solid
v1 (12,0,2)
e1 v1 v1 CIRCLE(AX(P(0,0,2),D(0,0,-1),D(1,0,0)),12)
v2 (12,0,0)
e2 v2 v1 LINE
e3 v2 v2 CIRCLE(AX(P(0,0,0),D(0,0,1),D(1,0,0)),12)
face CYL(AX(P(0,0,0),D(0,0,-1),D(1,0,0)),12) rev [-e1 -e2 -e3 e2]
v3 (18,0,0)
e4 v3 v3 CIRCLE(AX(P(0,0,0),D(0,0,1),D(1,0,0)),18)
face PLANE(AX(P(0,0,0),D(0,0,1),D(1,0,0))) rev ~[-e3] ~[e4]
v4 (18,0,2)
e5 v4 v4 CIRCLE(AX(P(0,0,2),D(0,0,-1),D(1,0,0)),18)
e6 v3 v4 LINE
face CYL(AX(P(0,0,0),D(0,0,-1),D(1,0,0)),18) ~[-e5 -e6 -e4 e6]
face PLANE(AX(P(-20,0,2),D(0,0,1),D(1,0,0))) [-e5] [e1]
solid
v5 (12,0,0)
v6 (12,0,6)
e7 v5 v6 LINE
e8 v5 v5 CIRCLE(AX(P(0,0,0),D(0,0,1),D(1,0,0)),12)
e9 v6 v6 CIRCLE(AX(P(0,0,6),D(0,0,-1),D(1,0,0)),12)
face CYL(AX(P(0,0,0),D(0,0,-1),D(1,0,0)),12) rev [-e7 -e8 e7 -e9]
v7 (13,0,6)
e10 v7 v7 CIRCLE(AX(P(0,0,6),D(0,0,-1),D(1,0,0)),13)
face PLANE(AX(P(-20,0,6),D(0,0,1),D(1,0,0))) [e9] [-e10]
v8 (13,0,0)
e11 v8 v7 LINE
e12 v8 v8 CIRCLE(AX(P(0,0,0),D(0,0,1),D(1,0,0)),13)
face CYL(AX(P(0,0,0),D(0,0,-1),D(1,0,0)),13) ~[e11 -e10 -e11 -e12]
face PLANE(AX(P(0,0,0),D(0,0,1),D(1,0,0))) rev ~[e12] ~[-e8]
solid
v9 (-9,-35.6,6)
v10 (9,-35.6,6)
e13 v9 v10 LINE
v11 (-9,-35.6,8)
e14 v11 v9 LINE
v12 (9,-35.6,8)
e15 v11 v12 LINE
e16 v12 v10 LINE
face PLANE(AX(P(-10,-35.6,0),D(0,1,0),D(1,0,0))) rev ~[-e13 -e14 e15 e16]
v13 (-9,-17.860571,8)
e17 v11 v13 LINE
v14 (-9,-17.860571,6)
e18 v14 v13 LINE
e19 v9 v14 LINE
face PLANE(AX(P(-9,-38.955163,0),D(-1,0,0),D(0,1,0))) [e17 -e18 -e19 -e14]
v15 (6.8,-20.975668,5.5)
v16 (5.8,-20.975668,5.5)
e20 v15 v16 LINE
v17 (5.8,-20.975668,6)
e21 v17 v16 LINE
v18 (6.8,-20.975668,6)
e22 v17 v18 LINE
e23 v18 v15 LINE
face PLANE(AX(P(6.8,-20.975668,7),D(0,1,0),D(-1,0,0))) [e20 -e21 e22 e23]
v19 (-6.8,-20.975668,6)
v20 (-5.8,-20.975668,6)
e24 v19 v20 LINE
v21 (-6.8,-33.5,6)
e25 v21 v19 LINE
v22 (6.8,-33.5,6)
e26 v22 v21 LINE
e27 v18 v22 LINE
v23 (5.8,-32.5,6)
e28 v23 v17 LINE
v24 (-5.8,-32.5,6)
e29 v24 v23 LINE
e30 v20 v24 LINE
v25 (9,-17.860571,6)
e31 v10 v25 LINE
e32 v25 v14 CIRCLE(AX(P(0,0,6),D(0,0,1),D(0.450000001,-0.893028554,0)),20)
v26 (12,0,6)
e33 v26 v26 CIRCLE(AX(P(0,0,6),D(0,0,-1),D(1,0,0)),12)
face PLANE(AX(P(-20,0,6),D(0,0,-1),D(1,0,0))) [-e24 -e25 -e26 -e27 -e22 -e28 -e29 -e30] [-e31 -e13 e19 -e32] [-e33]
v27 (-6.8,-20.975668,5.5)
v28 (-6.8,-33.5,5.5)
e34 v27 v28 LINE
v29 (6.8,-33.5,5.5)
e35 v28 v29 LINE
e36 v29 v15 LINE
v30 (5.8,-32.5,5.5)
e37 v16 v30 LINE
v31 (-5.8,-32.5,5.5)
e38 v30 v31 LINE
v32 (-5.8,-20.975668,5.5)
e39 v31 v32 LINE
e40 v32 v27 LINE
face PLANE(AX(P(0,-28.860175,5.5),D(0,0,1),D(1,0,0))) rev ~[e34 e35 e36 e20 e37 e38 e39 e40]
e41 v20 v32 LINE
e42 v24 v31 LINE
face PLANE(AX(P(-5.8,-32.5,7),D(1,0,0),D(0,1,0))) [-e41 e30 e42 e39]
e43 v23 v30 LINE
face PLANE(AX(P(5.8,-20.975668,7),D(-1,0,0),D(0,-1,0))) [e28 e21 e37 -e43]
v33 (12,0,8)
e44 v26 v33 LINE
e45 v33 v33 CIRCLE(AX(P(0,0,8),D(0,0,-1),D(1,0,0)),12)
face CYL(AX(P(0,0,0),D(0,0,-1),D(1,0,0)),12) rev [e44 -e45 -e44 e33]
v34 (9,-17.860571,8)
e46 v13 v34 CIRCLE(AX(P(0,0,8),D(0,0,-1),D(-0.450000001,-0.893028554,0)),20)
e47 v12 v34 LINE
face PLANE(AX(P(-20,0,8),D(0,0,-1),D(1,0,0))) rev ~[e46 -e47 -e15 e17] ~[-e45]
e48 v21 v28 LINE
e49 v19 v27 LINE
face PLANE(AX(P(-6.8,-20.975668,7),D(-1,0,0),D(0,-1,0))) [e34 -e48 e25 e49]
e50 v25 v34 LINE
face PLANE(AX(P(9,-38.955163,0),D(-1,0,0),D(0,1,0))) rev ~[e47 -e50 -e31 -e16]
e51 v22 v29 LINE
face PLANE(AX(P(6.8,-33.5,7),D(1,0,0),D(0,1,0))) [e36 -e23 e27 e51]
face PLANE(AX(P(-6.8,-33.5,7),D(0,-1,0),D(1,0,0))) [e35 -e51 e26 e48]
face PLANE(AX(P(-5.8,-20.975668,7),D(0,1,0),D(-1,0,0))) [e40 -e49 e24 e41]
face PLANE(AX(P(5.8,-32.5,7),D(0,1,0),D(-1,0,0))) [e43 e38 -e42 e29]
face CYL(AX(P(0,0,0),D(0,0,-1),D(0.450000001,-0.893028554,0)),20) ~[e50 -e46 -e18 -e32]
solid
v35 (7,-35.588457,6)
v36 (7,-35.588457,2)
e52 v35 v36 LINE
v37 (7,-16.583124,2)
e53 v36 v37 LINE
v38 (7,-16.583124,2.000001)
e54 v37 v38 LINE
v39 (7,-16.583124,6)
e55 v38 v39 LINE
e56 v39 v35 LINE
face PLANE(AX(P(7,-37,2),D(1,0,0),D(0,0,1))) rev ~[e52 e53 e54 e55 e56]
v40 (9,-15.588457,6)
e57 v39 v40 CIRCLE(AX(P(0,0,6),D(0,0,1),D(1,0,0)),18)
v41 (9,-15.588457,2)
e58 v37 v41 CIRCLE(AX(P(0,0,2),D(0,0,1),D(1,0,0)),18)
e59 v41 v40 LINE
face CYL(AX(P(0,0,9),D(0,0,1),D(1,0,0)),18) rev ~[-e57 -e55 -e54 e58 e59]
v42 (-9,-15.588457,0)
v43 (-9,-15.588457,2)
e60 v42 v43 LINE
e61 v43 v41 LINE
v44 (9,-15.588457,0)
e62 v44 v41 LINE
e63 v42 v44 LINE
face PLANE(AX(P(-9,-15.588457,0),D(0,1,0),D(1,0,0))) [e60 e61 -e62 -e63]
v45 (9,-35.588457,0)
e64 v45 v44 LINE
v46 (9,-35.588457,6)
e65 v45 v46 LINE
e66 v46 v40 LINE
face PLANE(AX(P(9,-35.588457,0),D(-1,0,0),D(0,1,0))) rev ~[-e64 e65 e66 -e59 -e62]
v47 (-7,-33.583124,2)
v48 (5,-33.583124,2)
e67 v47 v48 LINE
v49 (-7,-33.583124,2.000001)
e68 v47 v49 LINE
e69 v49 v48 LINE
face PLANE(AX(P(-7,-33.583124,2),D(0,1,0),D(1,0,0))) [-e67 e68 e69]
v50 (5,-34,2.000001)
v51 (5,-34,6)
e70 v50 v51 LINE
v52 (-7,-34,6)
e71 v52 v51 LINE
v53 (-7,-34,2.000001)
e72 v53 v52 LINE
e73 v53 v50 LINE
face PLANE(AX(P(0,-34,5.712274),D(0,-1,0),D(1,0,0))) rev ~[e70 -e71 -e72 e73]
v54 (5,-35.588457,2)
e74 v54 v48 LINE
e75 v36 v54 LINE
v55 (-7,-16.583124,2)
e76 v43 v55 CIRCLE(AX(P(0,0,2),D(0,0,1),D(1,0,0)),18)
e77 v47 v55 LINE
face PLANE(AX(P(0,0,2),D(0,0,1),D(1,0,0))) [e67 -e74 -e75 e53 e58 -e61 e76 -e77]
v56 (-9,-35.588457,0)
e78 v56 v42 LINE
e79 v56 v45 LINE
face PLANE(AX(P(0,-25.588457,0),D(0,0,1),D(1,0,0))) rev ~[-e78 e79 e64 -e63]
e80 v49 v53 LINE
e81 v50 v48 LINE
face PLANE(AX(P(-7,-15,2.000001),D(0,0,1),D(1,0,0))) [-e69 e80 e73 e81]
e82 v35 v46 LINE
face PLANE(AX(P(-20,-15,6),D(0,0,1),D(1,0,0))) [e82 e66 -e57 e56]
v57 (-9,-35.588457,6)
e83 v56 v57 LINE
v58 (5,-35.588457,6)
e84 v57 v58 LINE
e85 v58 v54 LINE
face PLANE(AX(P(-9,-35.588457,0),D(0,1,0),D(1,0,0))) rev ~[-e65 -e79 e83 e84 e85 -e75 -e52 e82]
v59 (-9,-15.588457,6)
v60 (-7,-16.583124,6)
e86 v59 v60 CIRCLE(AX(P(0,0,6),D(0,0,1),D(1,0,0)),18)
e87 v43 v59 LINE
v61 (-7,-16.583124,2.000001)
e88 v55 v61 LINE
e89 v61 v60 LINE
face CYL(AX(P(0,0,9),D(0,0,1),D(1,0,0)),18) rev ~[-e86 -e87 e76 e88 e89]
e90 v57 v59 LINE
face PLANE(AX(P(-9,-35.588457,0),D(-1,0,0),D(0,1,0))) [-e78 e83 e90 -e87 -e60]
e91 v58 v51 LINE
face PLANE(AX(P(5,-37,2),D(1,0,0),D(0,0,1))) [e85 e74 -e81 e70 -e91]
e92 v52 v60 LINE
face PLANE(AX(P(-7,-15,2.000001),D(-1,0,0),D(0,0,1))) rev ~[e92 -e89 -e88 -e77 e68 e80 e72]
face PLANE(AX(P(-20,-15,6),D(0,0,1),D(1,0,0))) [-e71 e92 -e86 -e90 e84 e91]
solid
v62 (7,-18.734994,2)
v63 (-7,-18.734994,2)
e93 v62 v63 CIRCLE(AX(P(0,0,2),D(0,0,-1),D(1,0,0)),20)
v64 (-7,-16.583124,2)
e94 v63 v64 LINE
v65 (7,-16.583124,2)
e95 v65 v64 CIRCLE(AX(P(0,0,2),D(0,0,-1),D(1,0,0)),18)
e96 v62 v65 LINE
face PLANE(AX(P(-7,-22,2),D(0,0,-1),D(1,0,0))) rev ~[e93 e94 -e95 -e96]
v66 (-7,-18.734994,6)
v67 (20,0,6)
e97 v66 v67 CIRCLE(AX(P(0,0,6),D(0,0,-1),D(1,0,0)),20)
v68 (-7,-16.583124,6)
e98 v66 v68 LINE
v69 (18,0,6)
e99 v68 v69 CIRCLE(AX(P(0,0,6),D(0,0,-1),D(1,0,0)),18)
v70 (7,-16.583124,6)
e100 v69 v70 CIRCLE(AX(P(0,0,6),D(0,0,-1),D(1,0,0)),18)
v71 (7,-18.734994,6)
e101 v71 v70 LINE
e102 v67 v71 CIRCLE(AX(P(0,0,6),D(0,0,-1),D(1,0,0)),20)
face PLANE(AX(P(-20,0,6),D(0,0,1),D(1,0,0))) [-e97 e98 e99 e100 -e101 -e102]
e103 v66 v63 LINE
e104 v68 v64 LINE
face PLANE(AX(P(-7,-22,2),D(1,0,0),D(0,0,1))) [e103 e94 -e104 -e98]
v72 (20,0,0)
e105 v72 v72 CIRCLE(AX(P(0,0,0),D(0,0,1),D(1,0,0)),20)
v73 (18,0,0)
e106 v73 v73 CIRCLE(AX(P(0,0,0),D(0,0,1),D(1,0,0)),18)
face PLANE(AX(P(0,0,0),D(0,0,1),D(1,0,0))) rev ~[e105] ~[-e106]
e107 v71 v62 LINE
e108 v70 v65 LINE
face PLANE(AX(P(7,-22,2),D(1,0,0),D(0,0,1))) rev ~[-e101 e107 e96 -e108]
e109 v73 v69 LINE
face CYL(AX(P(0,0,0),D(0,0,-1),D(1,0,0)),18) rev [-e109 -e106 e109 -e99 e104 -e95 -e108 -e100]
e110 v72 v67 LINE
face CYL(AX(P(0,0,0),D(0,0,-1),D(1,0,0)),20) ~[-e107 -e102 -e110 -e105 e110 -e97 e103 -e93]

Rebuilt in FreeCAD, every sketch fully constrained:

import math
import FreeCAD as App
import Part
import Sketcher
from FreeCAD import Vector

doc = App.newDocument("Part")
body = doc.addObject("PartDesign::Body", "Body")

# Sketch on XY plane
sketch1 = doc.addObject("Sketcher::SketchObject", "Sketch")
body.addObject(sketch1)
sketch1.AttachmentSupport = (doc.XY_Plane, [""])
sketch1.MapMode = "FlatFace"
sketch1.addGeometry(Part.Circle(Vector(0, 0, 0), Vector(0, 0, 1), 20), False)
sketch1.addConstraint(Sketcher.Constraint("Coincident", 0, 3, -1, 1))
sketch1.addConstraint(Sketcher.Constraint("Diameter", 0, 40.0))
pad1 = doc.addObject("PartDesign::Pad", "Pad")
body.addObject(pad1)
pad1.Profile = sketch1
pad1.Length = 30

# Sketch on XY plane
sketch2 = doc.addObject("Sketcher::SketchObject", "Sketch001")
body.addObject(sketch2)
sketch2.AttachmentSupport = (doc.XY_Plane, [""])
sketch2.MapMode = "FlatFace"
sketch2.addGeometry(Part.Circle(Vector(0, 0, 0), Vector(0, 0, 1), 18), False)
sketch2.addConstraint(Sketcher.Constraint("Coincident", 0, 3, -1, 1))
sketch2.addConstraint(Sketcher.Constraint("Diameter", 0, 36.0))
pocket1 = doc.addObject("PartDesign::Pocket", "Pocket")
body.addObject(pocket1)
pocket1.Profile = sketch2
pocket1.Length = 40
pocket1.Reversed = True

# Sketch on XZ plane
sketch3 = doc.addObject("Sketcher::SketchObject", "Sketch002")
body.addObject(sketch3)
sketch3.AttachmentSupport = (doc.XZ_Plane, [""])
sketch3.MapMode = "FlatFace"
sketch3.addGeometry(Part.LineSegment(Vector(-20, 32, 0), Vector(-20, 6, 0)), False)
sketch3.addGeometry(Part.LineSegment(Vector(-20, 6, 0), Vector(20, 6, 0)), False)
sketch3.addGeometry(Part.LineSegment(Vector(20, 6, 0), Vector(20, 32, 0)), False)
sketch3.addGeometry(Part.LineSegment(Vector(20, 32, 0), Vector(-20, 32, 0)), False)
sketch3.addConstraint(Sketcher.Constraint("Coincident", 0, 2, 1, 1))
sketch3.addConstraint(Sketcher.Constraint("Coincident", 1, 2, 2, 1))
sketch3.addConstraint(Sketcher.Constraint("Coincident", 2, 2, 3, 1))
sketch3.addConstraint(Sketcher.Constraint("Coincident", 3, 2, 0, 1))
sketch3.addConstraint(Sketcher.Constraint("Vertical", 0))
sketch3.addConstraint(Sketcher.Constraint("Horizontal", 1))
sketch3.addConstraint(Sketcher.Constraint("Vertical", 2))
sketch3.addConstraint(Sketcher.Constraint("Horizontal", 3))
sketch3.addConstraint(Sketcher.Constraint("DistanceX", 1, 1, 1, 2, 40.0))
sketch3.addConstraint(Sketcher.Constraint("DistanceY", 0, 2, 0, 1, 26.0))
sketch3.addConstraint(Sketcher.Constraint("DistanceX", 0, 2, -1, 1, 20.0))
sketch3.addConstraint(Sketcher.Constraint("DistanceY", -1, 1, 0, 2, 6.0))
pocket2 = doc.addObject("PartDesign::Pocket", "Pocket001")
body.addObject(pocket2)
pocket2.Profile = sketch3
pocket2.Type = "ThroughAll"
pocket2.Midplane = True

# Sketch on XZ plane
sketch4 = doc.addObject("Sketcher::SketchObject", "Sketch003")
body.addObject(sketch4)
sketch4.AttachmentSupport = (doc.XZ_Plane, [""])
sketch4.MapMode = "FlatFace"
sketch4.AttachmentOffset = App.Placement(Vector(0, 0, 22), App.Rotation())
sketch4.addGeometry(Part.LineSegment(Vector(-7, 9.569522, 0), Vector(-7, 2, 0)), False)
sketch4.addGeometry(Part.LineSegment(Vector(-7, 2, 0), Vector(7, 2, 0)), False)
sketch4.addGeometry(Part.LineSegment(Vector(7, 2, 0), Vector(7, 9.569522, 0)), False)
sketch4.addGeometry(Part.LineSegment(Vector(7, 9.569522, 0), Vector(-7, 9.569522, 0)), False)
sketch4.addConstraint(Sketcher.Constraint("Coincident", 0, 2, 1, 1))
sketch4.addConstraint(Sketcher.Constraint("Coincident", 1, 2, 2, 1))
sketch4.addConstraint(Sketcher.Constraint("Coincident", 2, 2, 3, 1))
sketch4.addConstraint(Sketcher.Constraint("Coincident", 3, 2, 0, 1))
sketch4.addConstraint(Sketcher.Constraint("Vertical", 0))
sketch4.addConstraint(Sketcher.Constraint("Horizontal", 1))
sketch4.addConstraint(Sketcher.Constraint("Vertical", 2))
sketch4.addConstraint(Sketcher.Constraint("Horizontal", 3))
sketch4.addConstraint(Sketcher.Constraint("DistanceX", 1, 1, 1, 2, 14.0))
sketch4.addConstraint(Sketcher.Constraint("DistanceX", 0, 2, -1, 1, 7.0))
sketch4.addConstraint(Sketcher.Constraint("DistanceY", -1, 1, 0, 2, 2.0))
sketch4.addConstraint(Sketcher.Constraint("DistanceY", 0, 2, 0, 1, 7.569522))
pocket3 = doc.addObject("PartDesign::Pocket", "Pocket002")
body.addObject(pocket3)
pocket3.Profile = sketch4
pocket3.Length = 6
body2 = doc.addObject("PartDesign::Body", "Body001")

# Sketch on XY plane
sketch5 = doc.addObject("Sketcher::SketchObject", "Sketch004")
body2.addObject(sketch5)
sketch5.AttachmentSupport = (doc.getObject("XY_Plane001"), [""])
sketch5.MapMode = "FlatFace"
sketch5.addGeometry(Part.Circle(Vector(0, 0, 0), Vector(0, 0, 1), 13), False)
sketch5.addConstraint(Sketcher.Constraint("Coincident", 0, 3, -1, 1))
sketch5.addConstraint(Sketcher.Constraint("Diameter", 0, 26.0))
pad2 = doc.addObject("PartDesign::Pad", "Pad001")
body2.addObject(pad2)
pad2.Profile = sketch5
pad2.Length = 30

# Sketch on XZ plane
sketch6 = doc.addObject("Sketcher::SketchObject", "Sketch005")
body2.addObject(sketch6)
sketch6.AttachmentSupport = (doc.getObject("XZ_Plane001"), [""])
sketch6.MapMode = "FlatFace"
sketch6.addGeometry(Part.LineSegment(Vector(-20, 32, 0), Vector(-20, 6, 0)), False)
sketch6.addGeometry(Part.LineSegment(Vector(-20, 6, 0), Vector(20, 6, 0)), False)
sketch6.addGeometry(Part.LineSegment(Vector(20, 6, 0), Vector(20, 32, 0)), False)
sketch6.addGeometry(Part.LineSegment(Vector(20, 32, 0), Vector(-20, 32, 0)), False)
sketch6.addConstraint(Sketcher.Constraint("Coincident", 0, 2, 1, 1))
sketch6.addConstraint(Sketcher.Constraint("Coincident", 1, 2, 2, 1))
sketch6.addConstraint(Sketcher.Constraint("Coincident", 2, 2, 3, 1))
sketch6.addConstraint(Sketcher.Constraint("Coincident", 3, 2, 0, 1))
sketch6.addConstraint(Sketcher.Constraint("Vertical", 0))
sketch6.addConstraint(Sketcher.Constraint("Horizontal", 1))
sketch6.addConstraint(Sketcher.Constraint("Vertical", 2))
sketch6.addConstraint(Sketcher.Constraint("Horizontal", 3))
sketch6.addConstraint(Sketcher.Constraint("DistanceX", 1, 1, 1, 2, 40.0))
sketch6.addConstraint(Sketcher.Constraint("DistanceY", 0, 2, 0, 1, 26.0))
sketch6.addConstraint(Sketcher.Constraint("DistanceX", 0, 2, -1, 1, 20.0))
sketch6.addConstraint(Sketcher.Constraint("DistanceY", -1, 1, 0, 2, 6.0))
pocket4 = doc.addObject("PartDesign::Pocket", "Pocket003")
body2.addObject(pocket4)
pocket4.Profile = sketch6
pocket4.Type = "ThroughAll"
pocket4.Midplane = True

# Sketch on XY plane
sketch7 = doc.addObject("Sketcher::SketchObject", "Sketch006")
body2.addObject(sketch7)
sketch7.AttachmentSupport = (doc.getObject("XY_Plane001"), [""])
sketch7.MapMode = "FlatFace"
sketch7.addGeometry(Part.Circle(Vector(0, 0, 0), Vector(0, 0, 1), 12), False)
sketch7.addConstraint(Sketcher.Constraint("Coincident", 0, 3, -1, 1))
sketch7.addConstraint(Sketcher.Constraint("Diameter", 0, 24.0))
pocket5 = doc.addObject("PartDesign::Pocket", "Pocket004")
body2.addObject(pocket5)
pocket5.Profile = sketch7
pocket5.Type = "ThroughAll"
pocket5.Reversed = True
body3 = doc.addObject("PartDesign::Body", "Body002")

# Sketch on XY plane
sketch8 = doc.addObject("Sketcher::SketchObject", "Sketch007")
body3.addObject(sketch8)
sketch8.AttachmentSupport = (doc.getObject("XY_Plane002"), [""])
sketch8.MapMode = "FlatFace"
sketch8.addGeometry(Part.Circle(Vector(0, 0, 0), Vector(0, 0, 1), 18), False)
sketch8.addConstraint(Sketcher.Constraint("Coincident", 0, 3, -1, 1))
sketch8.addConstraint(Sketcher.Constraint("Diameter", 0, 36.0))
pad3 = doc.addObject("PartDesign::Pad", "Pad002")
body3.addObject(pad3)
pad3.Profile = sketch8
pad3.Length = 30

# Sketch on XZ plane
sketch9 = doc.addObject("Sketcher::SketchObject", "Sketch008")
body3.addObject(sketch9)
sketch9.AttachmentSupport = (doc.getObject("XZ_Plane002"), [""])
sketch9.MapMode = "FlatFace"
sketch9.addGeometry(Part.LineSegment(Vector(-20, 32, 0), Vector(-20, 2, 0)), False)
sketch9.addGeometry(Part.LineSegment(Vector(-20, 2, 0), Vector(20, 2, 0)), False)
sketch9.addGeometry(Part.LineSegment(Vector(20, 2, 0), Vector(20, 32, 0)), False)
sketch9.addGeometry(Part.LineSegment(Vector(20, 32, 0), Vector(-20, 32, 0)), False)
sketch9.addConstraint(Sketcher.Constraint("Coincident", 0, 2, 1, 1))
sketch9.addConstraint(Sketcher.Constraint("Coincident", 1, 2, 2, 1))
sketch9.addConstraint(Sketcher.Constraint("Coincident", 2, 2, 3, 1))
sketch9.addConstraint(Sketcher.Constraint("Coincident", 3, 2, 0, 1))
sketch9.addConstraint(Sketcher.Constraint("Vertical", 0))
sketch9.addConstraint(Sketcher.Constraint("Horizontal", 1))
sketch9.addConstraint(Sketcher.Constraint("Vertical", 2))
sketch9.addConstraint(Sketcher.Constraint("Horizontal", 3))
sketch9.addConstraint(Sketcher.Constraint("DistanceX", 1, 1, 1, 2, 40.0))
sketch9.addConstraint(Sketcher.Constraint("DistanceY", 0, 2, 0, 1, 30.0))
sketch9.addConstraint(Sketcher.Constraint("DistanceX", 0, 2, -1, 1, 20.0))
sketch9.addConstraint(Sketcher.Constraint("DistanceY", -1, 1, 0, 2, 2.0))
pocket6 = doc.addObject("PartDesign::Pocket", "Pocket005")
body3.addObject(pocket6)
pocket6.Profile = sketch9
pocket6.Type = "ThroughAll"
pocket6.Midplane = True

# Sketch on XY plane
sketch10 = doc.addObject("Sketcher::SketchObject", "Sketch009")
body3.addObject(sketch10)
sketch10.AttachmentSupport = (doc.getObject("XY_Plane002"), [""])
sketch10.MapMode = "FlatFace"
sketch10.addGeometry(Part.Circle(Vector(0, 0, 0), Vector(0, 0, 1), 12), False)
sketch10.addConstraint(Sketcher.Constraint("Coincident", 0, 3, -1, 1))
sketch10.addConstraint(Sketcher.Constraint("Diameter", 0, 24.0))
pocket7 = doc.addObject("PartDesign::Pocket", "Pocket006")
body3.addObject(pocket7)
pocket7.Profile = sketch10
pocket7.Type = "ThroughAll"
pocket7.Reversed = True
body4 = doc.addObject("PartDesign::Body", "Body003")

# Sketch on XY plane
sketch11 = doc.addObject("Sketcher::SketchObject", "Sketch010")
body4.addObject(sketch11)
sketch11.AttachmentSupport = (doc.getObject("XY_Plane003"), [""])
sketch11.MapMode = "FlatFace"
sketch11.addGeometry(Part.LineSegment(Vector(-9, -15.588457, 0), Vector(-9, -35.588457, 0)), False)
sketch11.addGeometry(Part.LineSegment(Vector(-9, -35.588457, 0), Vector(9, -35.588457, 0)), False)
sketch11.addGeometry(Part.LineSegment(Vector(9, -35.588457, 0), Vector(9, -15.588457, 0)), False)
sketch11.addGeometry(Part.LineSegment(Vector(9, -15.588457, 0), Vector(-9, -15.588457, 0)), False)
sketch11.addConstraint(Sketcher.Constraint("Coincident", 0, 2, 1, 1))
sketch11.addConstraint(Sketcher.Constraint("Coincident", 1, 2, 2, 1))
sketch11.addConstraint(Sketcher.Constraint("Coincident", 2, 2, 3, 1))
sketch11.addConstraint(Sketcher.Constraint("Coincident", 3, 2, 0, 1))
sketch11.addConstraint(Sketcher.Constraint("Vertical", 0))
sketch11.addConstraint(Sketcher.Constraint("Horizontal", 1))
sketch11.addConstraint(Sketcher.Constraint("Vertical", 2))
sketch11.addConstraint(Sketcher.Constraint("Horizontal", 3))
sketch11.addConstraint(Sketcher.Constraint("DistanceX", 1, 1, 1, 2, 18.0))
sketch11.addConstraint(Sketcher.Constraint("DistanceY", 0, 2, 0, 1, 20.0))
sketch11.addConstraint(Sketcher.Constraint("DistanceX", 0, 2, -1, 1, 9.0))
sketch11.addConstraint(Sketcher.Constraint("DistanceY", 0, 2, -1, 1, 35.588457))
pad4 = doc.addObject("PartDesign::Pad", "Pad003")
body4.addObject(pad4)
pad4.Profile = sketch11
pad4.Length = 9

# Sketch on XY plane
sketch12 = doc.addObject("Sketcher::SketchObject", "Sketch011")
body4.addObject(sketch12)
sketch12.AttachmentSupport = (doc.getObject("XY_Plane003"), [""])
sketch12.MapMode = "FlatFace"
sketch12.AttachmentOffset = App.Placement(Vector(0, 0, 2), App.Rotation())
sketch12.addGeometry(Part.LineSegment(Vector(-7, -16.583124, 0), Vector(-7, -33.583124, 0)), False)
sketch12.addGeometry(Part.LineSegment(Vector(-7, -33.583124, 0), Vector(7, -33.583124, 0)), False)
sketch12.addGeometry(Part.LineSegment(Vector(7, -33.583124, 0), Vector(7, -16.583124, 0)), False)
sketch12.addGeometry(Part.LineSegment(Vector(7, -16.583124, 0), Vector(-7, -16.583124, 0)), False)
sketch12.addConstraint(Sketcher.Constraint("Coincident", 0, 2, 1, 1))
sketch12.addConstraint(Sketcher.Constraint("Coincident", 1, 2, 2, 1))
sketch12.addConstraint(Sketcher.Constraint("Coincident", 2, 2, 3, 1))
sketch12.addConstraint(Sketcher.Constraint("Coincident", 3, 2, 0, 1))
sketch12.addConstraint(Sketcher.Constraint("Vertical", 0))
sketch12.addConstraint(Sketcher.Constraint("Horizontal", 1))
sketch12.addConstraint(Sketcher.Constraint("Vertical", 2))
sketch12.addConstraint(Sketcher.Constraint("Horizontal", 3))
sketch12.addConstraint(Sketcher.Constraint("DistanceX", 1, 1, 1, 2, 14.0))
sketch12.addConstraint(Sketcher.Constraint("DistanceY", 0, 2, 0, 1, 17.0))
sketch12.addConstraint(Sketcher.Constraint("DistanceX", 0, 2, -1, 1, 7.0))
sketch12.addConstraint(Sketcher.Constraint("DistanceY", 0, 2, -1, 1, 33.583124))
pocket8 = doc.addObject("PartDesign::Pocket", "Pocket007")
body4.addObject(pocket8)
pocket8.Profile = sketch12
pocket8.Length = 7
pocket8.Reversed = True

# Sketch on XZ plane
sketch13 = doc.addObject("Sketcher::SketchObject", "Sketch012")
body4.addObject(sketch13)
sketch13.AttachmentSupport = (doc.getObject("XZ_Plane003"), [""])
sketch13.MapMode = "FlatFace"
sketch13.AttachmentOffset = App.Placement(Vector(0, 0, 15), App.Rotation())
sketch13.addGeometry(Part.LineSegment(Vector(-20, 32, 0), Vector(-20, 6, 0)), False)
sketch13.addGeometry(Part.LineSegment(Vector(-20, 6, 0), Vector(20, 6, 0)), False)
sketch13.addGeometry(Part.LineSegment(Vector(20, 6, 0), Vector(20, 32, 0)), False)
sketch13.addGeometry(Part.LineSegment(Vector(20, 32, 0), Vector(-20, 32, 0)), False)
sketch13.addConstraint(Sketcher.Constraint("Coincident", 0, 2, 1, 1))
sketch13.addConstraint(Sketcher.Constraint("Coincident", 1, 2, 2, 1))
sketch13.addConstraint(Sketcher.Constraint("Coincident", 2, 2, 3, 1))
sketch13.addConstraint(Sketcher.Constraint("Coincident", 3, 2, 0, 1))
sketch13.addConstraint(Sketcher.Constraint("Vertical", 0))
sketch13.addConstraint(Sketcher.Constraint("Horizontal", 1))
sketch13.addConstraint(Sketcher.Constraint("Vertical", 2))
sketch13.addConstraint(Sketcher.Constraint("Horizontal", 3))
sketch13.addConstraint(Sketcher.Constraint("DistanceX", 1, 1, 1, 2, 40.0))
sketch13.addConstraint(Sketcher.Constraint("DistanceY", 0, 2, 0, 1, 26.0))
sketch13.addConstraint(Sketcher.Constraint("DistanceX", 0, 2, -1, 1, 20.0))
sketch13.addConstraint(Sketcher.Constraint("DistanceY", -1, 1, 0, 2, 6.0))
pocket9 = doc.addObject("PartDesign::Pocket", "Pocket008")
body4.addObject(pocket9)
pocket9.Profile = sketch13
pocket9.Length = 21
pocket9.Reversed = True

# Sketch on XZ plane
sketch14 = doc.addObject("Sketcher::SketchObject", "Sketch013")
body4.addObject(sketch14)
sketch14.AttachmentSupport = (doc.getObject("XZ_Plane003"), [""])
sketch14.MapMode = "FlatFace"
sketch14.AttachmentOffset = App.Placement(Vector(0, 0, 15), App.Rotation())
sketch14.addGeometry(Part.LineSegment(Vector(-7, 9.424547, 0), Vector(-7, 2.000001, 0)), False)
sketch14.addGeometry(Part.LineSegment(Vector(-7, 2.000001, 0), Vector(7, 2.000001, 0)), False)
sketch14.addGeometry(Part.LineSegment(Vector(7, 2.000001, 0), Vector(7, 9.424547, 0)), False)
sketch14.addGeometry(Part.LineSegment(Vector(7, 9.424547, 0), Vector(-7, 9.424547, 0)), False)
sketch14.addConstraint(Sketcher.Constraint("Coincident", 0, 2, 1, 1))
sketch14.addConstraint(Sketcher.Constraint("Coincident", 1, 2, 2, 1))
sketch14.addConstraint(Sketcher.Constraint("Coincident", 2, 2, 3, 1))
sketch14.addConstraint(Sketcher.Constraint("Coincident", 3, 2, 0, 1))
sketch14.addConstraint(Sketcher.Constraint("Vertical", 0))
sketch14.addConstraint(Sketcher.Constraint("Horizontal", 1))
sketch14.addConstraint(Sketcher.Constraint("Vertical", 2))
sketch14.addConstraint(Sketcher.Constraint("Horizontal", 3))
sketch14.addConstraint(Sketcher.Constraint("DistanceX", 1, 1, 1, 2, 14.0))
sketch14.addConstraint(Sketcher.Constraint("DistanceX", 0, 2, -1, 1, 7.0))
sketch14.addConstraint(Sketcher.Constraint("DistanceY", -1, 1, 0, 2, 2.000001))
sketch14.addConstraint(Sketcher.Constraint("DistanceY", 0, 2, 0, 1, 7.424547))
pocket10 = doc.addObject("PartDesign::Pocket", "Pocket009")
body4.addObject(pocket10)
pocket10.Profile = sketch14
pocket10.Length = 19
pocket10.Reversed = True

# Sketch on XY plane
sketch15 = doc.addObject("Sketcher::SketchObject", "Sketch014")
body4.addObject(sketch15)
sketch15.AttachmentSupport = (doc.getObject("XY_Plane003"), [""])
sketch15.MapMode = "FlatFace"
sketch15.AttachmentOffset = App.Placement(Vector(0, 0, 9), App.Rotation())
sketch15.addGeometry(Part.Circle(Vector(0, 0, 0), Vector(0, 0, 1), 18), False)
sketch15.addConstraint(Sketcher.Constraint("Coincident", 0, 3, -1, 1))
sketch15.addConstraint(Sketcher.Constraint("Diameter", 0, 36.0))
pocket11 = doc.addObject("PartDesign::Pocket", "Pocket010")
body4.addObject(pocket11)
pocket11.Profile = sketch15
pocket11.Length = 7

# Sketch on XZ plane
sketch16 = doc.addObject("Sketcher::SketchObject", "Sketch015")
body4.addObject(sketch16)
sketch16.AttachmentSupport = (doc.getObject("XZ_Plane003"), [""])
sketch16.MapMode = "FlatFace"
sketch16.AttachmentOffset = App.Placement(Vector(0, 0, 37), App.Rotation())
sketch16.addGeometry(Part.LineSegment(Vector(5, 10, 0), Vector(5, 2, 0)), False)
sketch16.addGeometry(Part.LineSegment(Vector(5, 2, 0), Vector(7, 2, 0)), False)
sketch16.addGeometry(Part.LineSegment(Vector(7, 2, 0), Vector(7, 10, 0)), False)
sketch16.addGeometry(Part.LineSegment(Vector(7, 10, 0), Vector(5, 10, 0)), False)
sketch16.addConstraint(Sketcher.Constraint("Coincident", 0, 2, 1, 1))
sketch16.addConstraint(Sketcher.Constraint("Coincident", 1, 2, 2, 1))
sketch16.addConstraint(Sketcher.Constraint("Coincident", 2, 2, 3, 1))
sketch16.addConstraint(Sketcher.Constraint("Coincident", 3, 2, 0, 1))
sketch16.addConstraint(Sketcher.Constraint("Vertical", 0))
sketch16.addConstraint(Sketcher.Constraint("Horizontal", 1))
sketch16.addConstraint(Sketcher.Constraint("Vertical", 2))
sketch16.addConstraint(Sketcher.Constraint("Horizontal", 3))
sketch16.addConstraint(Sketcher.Constraint("DistanceX", 1, 1, 1, 2, 2.0))
sketch16.addConstraint(Sketcher.Constraint("DistanceY", 0, 2, 0, 1, 8.0))
sketch16.addConstraint(Sketcher.Constraint("DistanceX", -1, 1, 0, 2, 5.0))
sketch16.addConstraint(Sketcher.Constraint("DistanceY", -1, 1, 0, 2, 2.0))
pocket12 = doc.addObject("PartDesign::Pocket", "Pocket011")
body4.addObject(pocket12)
pocket12.Profile = sketch16
pocket12.Length = 5
body5 = doc.addObject("PartDesign::Body", "Body004")

# Sketch on XZ plane
sketch17 = doc.addObject("Sketcher::SketchObject", "Sketch016")
body5.addObject(sketch17)
sketch17.AttachmentSupport = (doc.getObject("XZ_Plane004"), [""])
sketch17.MapMode = "FlatFace"
sketch17.addGeometry(Part.LineSegment(Vector(-20, 32, 0), Vector(-20, 6, 0)), False)
sketch17.addGeometry(Part.LineSegment(Vector(-20, 6, 0), Vector(20, 6, 0)), False)
sketch17.addGeometry(Part.LineSegment(Vector(20, 6, 0), Vector(20, 32, 0)), False)
sketch17.addGeometry(Part.LineSegment(Vector(20, 32, 0), Vector(-20, 32, 0)), False)
sketch17.addConstraint(Sketcher.Constraint("Coincident", 0, 2, 1, 1))
sketch17.addConstraint(Sketcher.Constraint("Coincident", 1, 2, 2, 1))
sketch17.addConstraint(Sketcher.Constraint("Coincident", 2, 2, 3, 1))
sketch17.addConstraint(Sketcher.Constraint("Coincident", 3, 2, 0, 1))
sketch17.addConstraint(Sketcher.Constraint("Vertical", 0))
sketch17.addConstraint(Sketcher.Constraint("Horizontal", 1))
sketch17.addConstraint(Sketcher.Constraint("Vertical", 2))
sketch17.addConstraint(Sketcher.Constraint("Horizontal", 3))
sketch17.addConstraint(Sketcher.Constraint("DistanceX", 1, 1, 1, 2, 40.0))
sketch17.addConstraint(Sketcher.Constraint("DistanceY", 0, 2, 0, 1, 26.0))
sketch17.addConstraint(Sketcher.Constraint("DistanceX", 0, 2, -1, 1, 20.0))
sketch17.addConstraint(Sketcher.Constraint("DistanceY", -1, 1, 0, 2, 6.0))
pad5 = doc.addObject("PartDesign::Pad", "Pad004")
body5.addObject(pad5)
pad5.Profile = sketch17
pad5.Length = 72
pad5.Midplane = True

# Sketch on XZ plane
sketch18 = doc.addObject("Sketcher::SketchObject", "Sketch017")
body5.addObject(sketch18)
sketch18.AttachmentSupport = (doc.getObject("XZ_Plane004"), [""])
sketch18.MapMode = "FlatFace"
sketch18.addGeometry(Part.LineSegment(Vector(-20, 34, 0), Vector(-20, 8, 0)), False)
sketch18.addGeometry(Part.LineSegment(Vector(-20, 8, 0), Vector(20, 8, 0)), False)
sketch18.addGeometry(Part.LineSegment(Vector(20, 8, 0), Vector(20, 34, 0)), False)
sketch18.addGeometry(Part.LineSegment(Vector(20, 34, 0), Vector(-20, 34, 0)), False)
sketch18.addConstraint(Sketcher.Constraint("Coincident", 0, 2, 1, 1))
sketch18.addConstraint(Sketcher.Constraint("Coincident", 1, 2, 2, 1))
sketch18.addConstraint(Sketcher.Constraint("Coincident", 2, 2, 3, 1))
sketch18.addConstraint(Sketcher.Constraint("Coincident", 3, 2, 0, 1))
sketch18.addConstraint(Sketcher.Constraint("Vertical", 0))
sketch18.addConstraint(Sketcher.Constraint("Horizontal", 1))
sketch18.addConstraint(Sketcher.Constraint("Vertical", 2))
sketch18.addConstraint(Sketcher.Constraint("Horizontal", 3))
sketch18.addConstraint(Sketcher.Constraint("DistanceX", 1, 1, 1, 2, 40.0))
sketch18.addConstraint(Sketcher.Constraint("DistanceY", 0, 2, 0, 1, 26.0))
sketch18.addConstraint(Sketcher.Constraint("DistanceX", 0, 2, -1, 1, 20.0))
sketch18.addConstraint(Sketcher.Constraint("DistanceY", -1, 1, 0, 2, 8.0))
pocket13 = doc.addObject("PartDesign::Pocket", "Pocket012")
body5.addObject(pocket13)
pocket13.Profile = sketch18
pocket13.Length = 72
pocket13.Midplane = True

# Sketch on XY plane
sketch19 = doc.addObject("Sketcher::SketchObject", "Sketch018")
body5.addObject(sketch19)
sketch19.AttachmentSupport = (doc.getObject("XY_Plane004"), [""])
sketch19.MapMode = "FlatFace"
sketch19.addGeometry(Part.Circle(Vector(0, 0, 0), Vector(0, 0, 1), 12), False)
sketch19.addConstraint(Sketcher.Constraint("Coincident", 0, 3, -1, 1))
sketch19.addConstraint(Sketcher.Constraint("Diameter", 0, 24.0))
pocket14 = doc.addObject("PartDesign::Pocket", "Pocket013")
body5.addObject(pocket14)
pocket14.Profile = sketch19
pocket14.Type = "ThroughAll"
pocket14.Reversed = True

# Sketch on XY plane
sketch20 = doc.addObject("Sketcher::SketchObject", "Sketch019")
body5.addObject(sketch20)
sketch20.AttachmentSupport = (doc.getObject("XY_Plane004"), [""])
sketch20.MapMode = "FlatFace"
sketch20.addGeometry(Part.LineSegment(Vector(9, -17.860571, 0), Vector(9, -38.955163, 0)), False)
sketch20.addGeometry(Part.LineSegment(Vector(9, -38.955163, 0), Vector(27, -38.955163, 0)), False)
sketch20.addGeometry(Part.LineSegment(Vector(27, -38.955163, 0), Vector(27, 41.044837, 0)), False)
sketch20.addGeometry(Part.LineSegment(Vector(27, 41.044837, 0), Vector(-27, 41.044837, 0)), False)
sketch20.addGeometry(Part.LineSegment(Vector(-27, 41.044837, 0), Vector(-27, -38.955163, 0)), False)
sketch20.addGeometry(Part.LineSegment(Vector(-27, -38.955163, 0), Vector(-9, -38.955163, 0)), False)
sketch20.addGeometry(Part.LineSegment(Vector(-9, -38.955163, 0), Vector(-9, -17.860571, 0)), False)
sketch20.addGeometry(Part.ArcOfCircle(Part.Circle(Vector(0, 0, 0), Vector(0, 0, 1), 20), math.radians(-63.256316), math.radians(243.256316)), False)
sketch20.addConstraint(Sketcher.Constraint("Coincident", 0, 2, 1, 1))
sketch20.addConstraint(Sketcher.Constraint("Coincident", 1, 2, 2, 1))
sketch20.addConstraint(Sketcher.Constraint("Coincident", 2, 2, 3, 1))
sketch20.addConstraint(Sketcher.Constraint("Coincident", 3, 2, 4, 1))
sketch20.addConstraint(Sketcher.Constraint("Coincident", 4, 2, 5, 1))
sketch20.addConstraint(Sketcher.Constraint("Coincident", 5, 2, 6, 1))
sketch20.addConstraint(Sketcher.Constraint("Coincident", 6, 2, 7, 2))
sketch20.addConstraint(Sketcher.Constraint("Coincident", 7, 1, 0, 1))
sketch20.addConstraint(Sketcher.Constraint("Vertical", 0))
sketch20.addConstraint(Sketcher.Constraint("Horizontal", 1))
sketch20.addConstraint(Sketcher.Constraint("Vertical", 2))
sketch20.addConstraint(Sketcher.Constraint("Horizontal", 3))
sketch20.addConstraint(Sketcher.Constraint("Vertical", 4))
sketch20.addConstraint(Sketcher.Constraint("Horizontal", 5))
sketch20.addConstraint(Sketcher.Constraint("Vertical", 6))
sketch20.addConstraint(Sketcher.Constraint("Coincident", 7, 3, -1, 1))
sketch20.addConstraint(Sketcher.Constraint("Symmetric", 1, 2, 4, 2, -2))
sketch20.addConstraint(Sketcher.Constraint("Horizontal", 6, 2, 7, 1))
sketch20.addConstraint(Sketcher.Constraint("Radius", 7, 20.0))
sketch20.addConstraint(Sketcher.Constraint("DistanceX", 1, 1, 1, 2, 18.0))
sketch20.addConstraint(Sketcher.Constraint("DistanceX", 3, 2, 3, 1, 54.0))
sketch20.addConstraint(Sketcher.Constraint("DistanceY", 2, 1, 2, 2, 80.0))
sketch20.addConstraint(Sketcher.Constraint("DistanceY", 0, 2, 0, 1, 21.094592))
pocket15 = doc.addObject("PartDesign::Pocket", "Pocket014")
body5.addObject(pocket15)
pocket15.Profile = sketch20
pocket15.Length = 25
pocket15.Reversed = True

# Sketch on XY plane
sketch21 = doc.addObject("Sketcher::SketchObject", "Sketch020")
body5.addObject(sketch21)
sketch21.AttachmentSupport = (doc.getObject("XY_Plane004"), [""])
sketch21.MapMode = "FlatFace"
sketch21.addGeometry(Part.LineSegment(Vector(-10, -35.6, 0), Vector(-10, -40.6, 0)), False)
sketch21.addGeometry(Part.LineSegment(Vector(-10, -40.6, 0), Vector(10, -40.6, 0)), False)
sketch21.addGeometry(Part.LineSegment(Vector(10, -40.6, 0), Vector(10, -35.6, 0)), False)
sketch21.addGeometry(Part.LineSegment(Vector(10, -35.6, 0), Vector(-10, -35.6, 0)), False)
sketch21.addConstraint(Sketcher.Constraint("Coincident", 0, 2, 1, 1))
sketch21.addConstraint(Sketcher.Constraint("Coincident", 1, 2, 2, 1))
sketch21.addConstraint(Sketcher.Constraint("Coincident", 2, 2, 3, 1))
sketch21.addConstraint(Sketcher.Constraint("Coincident", 3, 2, 0, 1))
sketch21.addConstraint(Sketcher.Constraint("Vertical", 0))
sketch21.addConstraint(Sketcher.Constraint("Horizontal", 1))
sketch21.addConstraint(Sketcher.Constraint("Vertical", 2))
sketch21.addConstraint(Sketcher.Constraint("Horizontal", 3))
sketch21.addConstraint(Sketcher.Constraint("DistanceX", 1, 1, 1, 2, 20.0))
sketch21.addConstraint(Sketcher.Constraint("DistanceY", 0, 2, 0, 1, 5.0))
sketch21.addConstraint(Sketcher.Constraint("DistanceX", 0, 2, -1, 1, 10.0))
sketch21.addConstraint(Sketcher.Constraint("DistanceY", 0, 2, -1, 1, 40.6))
pocket16 = doc.addObject("PartDesign::Pocket", "Pocket015")
body5.addObject(pocket16)
pocket16.Profile = sketch21
pocket16.Length = 15
pocket16.Reversed = True

# Sketch on XY plane
sketch22 = doc.addObject("Sketcher::SketchObject", "Sketch021")
body5.addObject(sketch22)
sketch22.AttachmentSupport = (doc.getObject("XY_Plane004"), [""])
sketch22.MapMode = "FlatFace"
sketch22.AttachmentOffset = App.Placement(Vector(0, 0, 7), App.Rotation())
sketch22.addGeometry(Part.LineSegment(Vector(-6.8, -20.975668, 0), Vector(-6.8, -33.5, 0)), False)
sketch22.addGeometry(Part.LineSegment(Vector(-6.8, -33.5, 0), Vector(6.8, -33.5, 0)), False)
sketch22.addGeometry(Part.LineSegment(Vector(6.8, -33.5, 0), Vector(6.8, -20.975668, 0)), False)
sketch22.addGeometry(Part.LineSegment(Vector(6.8, -20.975668, 0), Vector(5.8, -20.975668, 0)), False)
sketch22.addGeometry(Part.LineSegment(Vector(5.8, -20.975668, 0), Vector(5.8, -32.5, 0)), False)
sketch22.addGeometry(Part.LineSegment(Vector(5.8, -32.5, 0), Vector(-5.8, -32.5, 0)), False)
sketch22.addGeometry(Part.LineSegment(Vector(-5.8, -32.5, 0), Vector(-5.8, -20.975668, 0)), False)
sketch22.addGeometry(Part.LineSegment(Vector(-5.8, -20.975668, 0), Vector(-6.8, -20.975668, 0)), False)
sketch22.addConstraint(Sketcher.Constraint("Coincident", 0, 2, 1, 1))
sketch22.addConstraint(Sketcher.Constraint("Coincident", 1, 2, 2, 1))
sketch22.addConstraint(Sketcher.Constraint("Coincident", 2, 2, 3, 1))
sketch22.addConstraint(Sketcher.Constraint("Coincident", 3, 2, 4, 1))
sketch22.addConstraint(Sketcher.Constraint("Coincident", 4, 2, 5, 1))
sketch22.addConstraint(Sketcher.Constraint("Coincident", 5, 2, 6, 1))
sketch22.addConstraint(Sketcher.Constraint("Coincident", 6, 2, 7, 1))
sketch22.addConstraint(Sketcher.Constraint("Coincident", 7, 2, 0, 1))
sketch22.addConstraint(Sketcher.Constraint("Vertical", 0))
sketch22.addConstraint(Sketcher.Constraint("Horizontal", 1))
sketch22.addConstraint(Sketcher.Constraint("Vertical", 2))
sketch22.addConstraint(Sketcher.Constraint("Horizontal", 3))
sketch22.addConstraint(Sketcher.Constraint("Vertical", 4))
sketch22.addConstraint(Sketcher.Constraint("Horizontal", 5))
sketch22.addConstraint(Sketcher.Constraint("Vertical", 6))
sketch22.addConstraint(Sketcher.Constraint("Horizontal", 7))
sketch22.addConstraint(Sketcher.Constraint("Symmetric", 3, 2, 6, 2, -2))
sketch22.addConstraint(Sketcher.Constraint("Equal", 3, 7))
sketch22.addConstraint(Sketcher.Constraint("DistanceX", 3, 2, 3, 1, 1.0))
sketch22.addConstraint(Sketcher.Constraint("DistanceX", 1, 1, 1, 2, 13.6))
sketch22.addConstraint(Sketcher.Constraint("DistanceY", 1, 2, 4, 2, 1.0))
sketch22.addConstraint(Sketcher.Constraint("DistanceY", 0, 2, -1, 1, 33.5))
sketch22.addConstraint(Sketcher.Constraint("DistanceY", 0, 2, 0, 1, 12.524332))
pad6 = doc.addObject("PartDesign::Pad", "Pad005")
body5.addObject(pad6)
pad6.Profile = sketch22
pad6.Length = 1.5
pad6.Reversed = True

doc.recompute()
